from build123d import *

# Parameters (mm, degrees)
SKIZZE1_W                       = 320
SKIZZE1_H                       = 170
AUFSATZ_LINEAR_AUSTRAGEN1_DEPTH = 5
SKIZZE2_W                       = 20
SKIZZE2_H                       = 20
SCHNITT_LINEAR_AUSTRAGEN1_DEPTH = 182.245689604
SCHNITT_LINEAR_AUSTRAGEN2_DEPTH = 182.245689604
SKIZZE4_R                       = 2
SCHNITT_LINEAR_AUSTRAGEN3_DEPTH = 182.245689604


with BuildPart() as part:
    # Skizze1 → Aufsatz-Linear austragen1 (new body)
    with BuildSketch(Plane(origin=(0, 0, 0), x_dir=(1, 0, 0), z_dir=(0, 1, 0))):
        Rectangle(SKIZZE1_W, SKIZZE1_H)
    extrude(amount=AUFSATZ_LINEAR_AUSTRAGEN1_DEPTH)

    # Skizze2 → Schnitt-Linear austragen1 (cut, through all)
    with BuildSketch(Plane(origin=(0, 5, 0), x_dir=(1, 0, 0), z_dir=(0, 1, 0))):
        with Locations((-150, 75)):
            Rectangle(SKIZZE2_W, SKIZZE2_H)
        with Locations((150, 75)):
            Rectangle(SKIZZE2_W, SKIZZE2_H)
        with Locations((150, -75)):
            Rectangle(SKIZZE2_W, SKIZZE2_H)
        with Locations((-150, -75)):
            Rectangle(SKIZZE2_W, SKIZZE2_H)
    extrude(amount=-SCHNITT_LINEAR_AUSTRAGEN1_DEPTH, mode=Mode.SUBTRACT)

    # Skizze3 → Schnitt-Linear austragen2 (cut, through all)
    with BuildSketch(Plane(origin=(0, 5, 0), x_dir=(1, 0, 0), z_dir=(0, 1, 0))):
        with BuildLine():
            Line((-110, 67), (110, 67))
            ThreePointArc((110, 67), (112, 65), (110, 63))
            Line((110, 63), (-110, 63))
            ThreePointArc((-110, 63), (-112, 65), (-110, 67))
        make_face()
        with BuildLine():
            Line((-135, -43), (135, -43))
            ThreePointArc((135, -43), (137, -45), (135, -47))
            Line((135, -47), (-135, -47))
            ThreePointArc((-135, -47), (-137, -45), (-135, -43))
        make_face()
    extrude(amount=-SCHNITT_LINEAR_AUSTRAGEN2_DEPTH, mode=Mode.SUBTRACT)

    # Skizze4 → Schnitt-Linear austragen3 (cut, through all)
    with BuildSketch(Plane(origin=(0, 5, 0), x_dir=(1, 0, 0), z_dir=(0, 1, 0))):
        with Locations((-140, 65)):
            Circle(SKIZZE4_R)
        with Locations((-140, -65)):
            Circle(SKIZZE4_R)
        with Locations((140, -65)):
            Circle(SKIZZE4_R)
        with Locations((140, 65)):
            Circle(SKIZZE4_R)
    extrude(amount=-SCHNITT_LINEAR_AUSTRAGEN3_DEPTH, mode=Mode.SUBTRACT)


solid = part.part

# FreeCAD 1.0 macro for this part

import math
import FreeCAD as App
import Part
import Sketcher
from FreeCAD import Vector
Q = App.Units.Quantity

doc = App.newDocument("Part")
body = doc.addObject("PartDesign::Body", "Body")

# Sketch on XZ plane
sketch1 = body.newObject("Sketcher::SketchObject", "Sketch")
sketch1.AttachmentSupport = (doc.getObject("XZ_Plane"), [""])
sketch1.MapMode = "FlatFace"
sketch1.addGeometry([
    Part.LineSegment(Vector(-160, -85, 0), Vector(-160, 85, 0)),
    Part.LineSegment(Vector(-160, 85, 0), Vector(160, 85, 0)),
    Part.LineSegment(Vector(160, 85, 0), Vector(160, -85, 0)),
    Part.LineSegment(Vector(160, -85, 0), Vector(-160, -85, 0)),
], False)
sketch1.addConstraint([
    Sketcher.Constraint("Coincident", 0, 2, 1, 1),
    Sketcher.Constraint("Coincident", 1, 2, 2, 1),
    Sketcher.Constraint("Coincident", 2, 2, 3, 1),
    Sketcher.Constraint("Coincident", 3, 2, 0, 1),
    Sketcher.Constraint("Vertical", 0),
    Sketcher.Constraint("Horizontal", 1),
    Sketcher.Constraint("Vertical", 2),
    Sketcher.Constraint("Horizontal", 3),
    Sketcher.Constraint("Symmetric", 0, 2, 2, 2, -1, 1),
    Sketcher.Constraint("DistanceX", 1, 1, 1, 2, Q("320 mm")),
    Sketcher.Constraint("DistanceY", 0, 1, 0, 2, Q("170 mm")),
])
pad1 = body.newObject("PartDesign::Pad", "Pad")
pad1.Profile = sketch1
pad1.Length = 5
pad1.Reversed = True

# Sketch on XZ plane
sketch2 = body.newObject("Sketcher::SketchObject", "Sketch001")
sketch2.AttachmentSupport = (doc.getObject("XZ_Plane"), [""])
sketch2.MapMode = "FlatFace"
sketch2.AttachmentOffset = App.Placement(Vector(0, 0, -5), App.Rotation())
sketch2.addGeometry([
    Part.LineSegment(Vector(-160, -85, 0), Vector(-160, -65, 0)),  # 0
    Part.LineSegment(Vector(-160, -65, 0), Vector(-140, -65, 0)),  # 1
    Part.LineSegment(Vector(-140, -65, 0), Vector(-140, -85, 0)),  # 2
    Part.LineSegment(Vector(-140, -85, 0), Vector(-160, -85, 0)),  # 3
    Part.LineSegment(Vector(140, -85, 0), Vector(140, -65, 0)),  # 4
    Part.LineSegment(Vector(140, -65, 0), Vector(160, -65, 0)),  # 5
    Part.LineSegment(Vector(160, -65, 0), Vector(160, -85, 0)),  # 6
    Part.LineSegment(Vector(160, -85, 0), Vector(140, -85, 0)),  # 7
    Part.LineSegment(Vector(140, 65, 0), Vector(140, 85, 0)),  # 8
    Part.LineSegment(Vector(140, 85, 0), Vector(160, 85, 0)),  # 9
    Part.LineSegment(Vector(160, 85, 0), Vector(160, 65, 0)),  # 10
    Part.LineSegment(Vector(160, 65, 0), Vector(140, 65, 0)),  # 11
    Part.LineSegment(Vector(-160, 65, 0), Vector(-160, 85, 0)),  # 12
    Part.LineSegment(Vector(-160, 85, 0), Vector(-140, 85, 0)),  # 13
    Part.LineSegment(Vector(-140, 85, 0), Vector(-140, 65, 0)),  # 14
    Part.LineSegment(Vector(-140, 65, 0), Vector(-160, 65, 0)),  # 15
], False)
sketch2.addConstraint([
    Sketcher.Constraint("Coincident", 0, 2, 1, 1),
    Sketcher.Constraint("Coincident", 1, 2, 2, 1),
    Sketcher.Constraint("Coincident", 2, 2, 3, 1),
    Sketcher.Constraint("Coincident", 3, 2, 0, 1),
    Sketcher.Constraint("Coincident", 4, 2, 5, 1),
    Sketcher.Constraint("Coincident", 5, 2, 6, 1),
    Sketcher.Constraint("Coincident", 6, 2, 7, 1),
    Sketcher.Constraint("Coincident", 7, 2, 4, 1),
    Sketcher.Constraint("Coincident", 8, 2, 9, 1),
    Sketcher.Constraint("Coincident", 9, 2, 10, 1),
    Sketcher.Constraint("Coincident", 10, 2, 11, 1),
    Sketcher.Constraint("Coincident", 11, 2, 8, 1),
    Sketcher.Constraint("Coincident", 12, 2, 13, 1),
    Sketcher.Constraint("Coincident", 13, 2, 14, 1),
    Sketcher.Constraint("Coincident", 14, 2, 15, 1),
    Sketcher.Constraint("Coincident", 15, 2, 12, 1),
    Sketcher.Constraint("Vertical", 0),
    Sketcher.Constraint("Horizontal", 1),
    Sketcher.Constraint("Vertical", 2),
    Sketcher.Constraint("Horizontal", 3),
    Sketcher.Constraint("Vertical", 4),
    Sketcher.Constraint("Horizontal", 5),
    Sketcher.Constraint("Vertical", 6),
    Sketcher.Constraint("Horizontal", 7),
    Sketcher.Constraint("Vertical", 8),
    Sketcher.Constraint("Horizontal", 9),
    Sketcher.Constraint("Vertical", 10),
    Sketcher.Constraint("Horizontal", 11),
    Sketcher.Constraint("Vertical", 12),
    Sketcher.Constraint("Horizontal", 13),
    Sketcher.Constraint("Vertical", 14),
    Sketcher.Constraint("Horizontal", 15),
    Sketcher.Constraint("Symmetric", 2, 2, 8, 2, -1, 1),
    Sketcher.Constraint("Symmetric", 0, 2, 10, 2, -1, 1),
    Sketcher.Constraint("Symmetric", 6, 2, 12, 2, -1, 1),
    Sketcher.Constraint("Symmetric", 4, 2, 14, 2, -1, 1),
    Sketcher.Constraint("Symmetric", 1, 2, 4, 2, -2),
    Sketcher.Constraint("Symmetric", 3, 2, 6, 2, -2),
    Sketcher.Constraint("Equal", 15, 0),
    Sketcher.Constraint("DistanceX", 1, 1, 1, 2, Q("20 mm")),
    Sketcher.Constraint("DistanceX", 0, 2, -1, 1, Q("160 mm")),
    Sketcher.Constraint("DistanceY", 0, 2, -1, 1, Q("65 mm")),
])
pocket1 = body.newObject("PartDesign::Pocket", "Pocket")
pocket1.Profile = sketch2
pocket1.Type = "ThroughAll"
pocket1.Reversed = True

# Sketch on XZ plane
sketch3 = body.newObject("Sketcher::SketchObject", "Sketch002")
sketch3.AttachmentSupport = (doc.getObject("XZ_Plane"), [""])
sketch3.MapMode = "FlatFace"
sketch3.AttachmentOffset = App.Placement(Vector(0, 0, -5), App.Rotation())
sketch3.addGeometry([
    Part.LineSegment(Vector(110, -67, 0), Vector(-110, -67, 0)),  # 0
    Part.ArcOfCircle(Part.Circle(Vector(-110, -65, 0), Vector(0, 0, 1), 2), math.radians(90), math.radians(270)),  # 1
    Part.LineSegment(Vector(-110, -63, 0), Vector(110, -63, 0)),  # 2
    Part.ArcOfCircle(Part.Circle(Vector(110, -65, 0), Vector(0, 0, 1), 2), math.radians(-90), math.radians(90)),  # 3
    Part.LineSegment(Vector(135, 43, 0), Vector(-135, 43, 0)),  # 4
    Part.ArcOfCircle(Part.Circle(Vector(-135, 45, 0), Vector(0, 0, 1), 2), math.radians(90), math.radians(270)),  # 5
    Part.LineSegment(Vector(-135, 47, 0), Vector(135, 47, 0)),  # 6
    Part.ArcOfCircle(Part.Circle(Vector(135, 45, 0), Vector(0, 0, 1), 2), math.radians(-90), math.radians(90)),  # 7
], False)
sketch3.addConstraint([
    Sketcher.Constraint("Tangent", 0, 2, 1, 2),
    Sketcher.Constraint("Tangent", 1, 1, 2, 1),
    Sketcher.Constraint("Tangent", 2, 2, 3, 2),
    Sketcher.Constraint("Tangent", 3, 1, 0, 1),
    Sketcher.Constraint("Tangent", 4, 2, 5, 2),
    Sketcher.Constraint("Tangent", 5, 1, 6, 1),
    Sketcher.Constraint("Tangent", 6, 2, 7, 2),
    Sketcher.Constraint("Tangent", 7, 1, 4, 1),
    Sketcher.Constraint("Horizontal", 0),
    Sketcher.Constraint("Horizontal", 2),
    Sketcher.Constraint("Horizontal", 4),
    Sketcher.Constraint("Horizontal", 6),
    Sketcher.Constraint("Equal", 3, 5),
    Sketcher.Constraint("Radius", 1, Q("2 mm")),
    Sketcher.Constraint("DistanceX", 0, 2, 0, 1, Q("220 mm")),
    Sketcher.Constraint("DistanceX", 4, 2, 4, 1, Q("270 mm")),
    Sketcher.Constraint("DistanceX", 1, 3, -1, 1, Q("110 mm")),
    Sketcher.Constraint("DistanceY", 1, 3, -1, 1, Q("65 mm")),
    Sketcher.Constraint("DistanceX", 5, 3, -1, 1, Q("135 mm")),
    Sketcher.Constraint("DistanceY", -1, 1, 5, 3, Q("45 mm")),
])
pocket2 = body.newObject("PartDesign::Pocket", "Pocket001")
pocket2.Profile = sketch3
pocket2.Type = "ThroughAll"
pocket2.Reversed = True

# Sketch on XZ plane
sketch4 = body.newObject("Sketcher::SketchObject", "Sketch003")
sketch4.AttachmentSupport = (doc.getObject("XZ_Plane"), [""])
sketch4.MapMode = "FlatFace"
sketch4.AttachmentOffset = App.Placement(Vector(0, 0, -5), App.Rotation())
sketch4.addGeometry([
    Part.Circle(Vector(-140, -65, 0), Vector(0, 0, 1), 2),
    Part.Circle(Vector(-140, 65, 0), Vector(0, 0, 1), 2),
    Part.Circle(Vector(140, 65, 0), Vector(0, 0, 1), 2),
    Part.Circle(Vector(140, -65, 0), Vector(0, 0, 1), 2),
], False)
sketch4.addConstraint([
    Sketcher.Constraint("Equal", 0, 1),
    Sketcher.Constraint("Equal", 1, 2),
    Sketcher.Constraint("Equal", 2, 3),
    Sketcher.Constraint("Symmetric", 0, 3, 2, 3, -1, 1),
    Sketcher.Constraint("Symmetric", 1, 3, 3, 3, -1, 1),
    Sketcher.Constraint("Symmetric", 1, 3, 2, 3, -2),
    Sketcher.Constraint("Diameter", 0, Q("4 mm")),
    Sketcher.Constraint("DistanceX", 0, 3, -1, 1, Q("140 mm")),
    Sketcher.Constraint("DistanceY", 0, 3, -1, 1, Q("65 mm")),
])
pocket3 = body.newObject("PartDesign::Pocket", "Pocket002")
pocket3.Profile = sketch4
pocket3.Type = "ThroughAll"
pocket3.Reversed = True

doc.recompute()
